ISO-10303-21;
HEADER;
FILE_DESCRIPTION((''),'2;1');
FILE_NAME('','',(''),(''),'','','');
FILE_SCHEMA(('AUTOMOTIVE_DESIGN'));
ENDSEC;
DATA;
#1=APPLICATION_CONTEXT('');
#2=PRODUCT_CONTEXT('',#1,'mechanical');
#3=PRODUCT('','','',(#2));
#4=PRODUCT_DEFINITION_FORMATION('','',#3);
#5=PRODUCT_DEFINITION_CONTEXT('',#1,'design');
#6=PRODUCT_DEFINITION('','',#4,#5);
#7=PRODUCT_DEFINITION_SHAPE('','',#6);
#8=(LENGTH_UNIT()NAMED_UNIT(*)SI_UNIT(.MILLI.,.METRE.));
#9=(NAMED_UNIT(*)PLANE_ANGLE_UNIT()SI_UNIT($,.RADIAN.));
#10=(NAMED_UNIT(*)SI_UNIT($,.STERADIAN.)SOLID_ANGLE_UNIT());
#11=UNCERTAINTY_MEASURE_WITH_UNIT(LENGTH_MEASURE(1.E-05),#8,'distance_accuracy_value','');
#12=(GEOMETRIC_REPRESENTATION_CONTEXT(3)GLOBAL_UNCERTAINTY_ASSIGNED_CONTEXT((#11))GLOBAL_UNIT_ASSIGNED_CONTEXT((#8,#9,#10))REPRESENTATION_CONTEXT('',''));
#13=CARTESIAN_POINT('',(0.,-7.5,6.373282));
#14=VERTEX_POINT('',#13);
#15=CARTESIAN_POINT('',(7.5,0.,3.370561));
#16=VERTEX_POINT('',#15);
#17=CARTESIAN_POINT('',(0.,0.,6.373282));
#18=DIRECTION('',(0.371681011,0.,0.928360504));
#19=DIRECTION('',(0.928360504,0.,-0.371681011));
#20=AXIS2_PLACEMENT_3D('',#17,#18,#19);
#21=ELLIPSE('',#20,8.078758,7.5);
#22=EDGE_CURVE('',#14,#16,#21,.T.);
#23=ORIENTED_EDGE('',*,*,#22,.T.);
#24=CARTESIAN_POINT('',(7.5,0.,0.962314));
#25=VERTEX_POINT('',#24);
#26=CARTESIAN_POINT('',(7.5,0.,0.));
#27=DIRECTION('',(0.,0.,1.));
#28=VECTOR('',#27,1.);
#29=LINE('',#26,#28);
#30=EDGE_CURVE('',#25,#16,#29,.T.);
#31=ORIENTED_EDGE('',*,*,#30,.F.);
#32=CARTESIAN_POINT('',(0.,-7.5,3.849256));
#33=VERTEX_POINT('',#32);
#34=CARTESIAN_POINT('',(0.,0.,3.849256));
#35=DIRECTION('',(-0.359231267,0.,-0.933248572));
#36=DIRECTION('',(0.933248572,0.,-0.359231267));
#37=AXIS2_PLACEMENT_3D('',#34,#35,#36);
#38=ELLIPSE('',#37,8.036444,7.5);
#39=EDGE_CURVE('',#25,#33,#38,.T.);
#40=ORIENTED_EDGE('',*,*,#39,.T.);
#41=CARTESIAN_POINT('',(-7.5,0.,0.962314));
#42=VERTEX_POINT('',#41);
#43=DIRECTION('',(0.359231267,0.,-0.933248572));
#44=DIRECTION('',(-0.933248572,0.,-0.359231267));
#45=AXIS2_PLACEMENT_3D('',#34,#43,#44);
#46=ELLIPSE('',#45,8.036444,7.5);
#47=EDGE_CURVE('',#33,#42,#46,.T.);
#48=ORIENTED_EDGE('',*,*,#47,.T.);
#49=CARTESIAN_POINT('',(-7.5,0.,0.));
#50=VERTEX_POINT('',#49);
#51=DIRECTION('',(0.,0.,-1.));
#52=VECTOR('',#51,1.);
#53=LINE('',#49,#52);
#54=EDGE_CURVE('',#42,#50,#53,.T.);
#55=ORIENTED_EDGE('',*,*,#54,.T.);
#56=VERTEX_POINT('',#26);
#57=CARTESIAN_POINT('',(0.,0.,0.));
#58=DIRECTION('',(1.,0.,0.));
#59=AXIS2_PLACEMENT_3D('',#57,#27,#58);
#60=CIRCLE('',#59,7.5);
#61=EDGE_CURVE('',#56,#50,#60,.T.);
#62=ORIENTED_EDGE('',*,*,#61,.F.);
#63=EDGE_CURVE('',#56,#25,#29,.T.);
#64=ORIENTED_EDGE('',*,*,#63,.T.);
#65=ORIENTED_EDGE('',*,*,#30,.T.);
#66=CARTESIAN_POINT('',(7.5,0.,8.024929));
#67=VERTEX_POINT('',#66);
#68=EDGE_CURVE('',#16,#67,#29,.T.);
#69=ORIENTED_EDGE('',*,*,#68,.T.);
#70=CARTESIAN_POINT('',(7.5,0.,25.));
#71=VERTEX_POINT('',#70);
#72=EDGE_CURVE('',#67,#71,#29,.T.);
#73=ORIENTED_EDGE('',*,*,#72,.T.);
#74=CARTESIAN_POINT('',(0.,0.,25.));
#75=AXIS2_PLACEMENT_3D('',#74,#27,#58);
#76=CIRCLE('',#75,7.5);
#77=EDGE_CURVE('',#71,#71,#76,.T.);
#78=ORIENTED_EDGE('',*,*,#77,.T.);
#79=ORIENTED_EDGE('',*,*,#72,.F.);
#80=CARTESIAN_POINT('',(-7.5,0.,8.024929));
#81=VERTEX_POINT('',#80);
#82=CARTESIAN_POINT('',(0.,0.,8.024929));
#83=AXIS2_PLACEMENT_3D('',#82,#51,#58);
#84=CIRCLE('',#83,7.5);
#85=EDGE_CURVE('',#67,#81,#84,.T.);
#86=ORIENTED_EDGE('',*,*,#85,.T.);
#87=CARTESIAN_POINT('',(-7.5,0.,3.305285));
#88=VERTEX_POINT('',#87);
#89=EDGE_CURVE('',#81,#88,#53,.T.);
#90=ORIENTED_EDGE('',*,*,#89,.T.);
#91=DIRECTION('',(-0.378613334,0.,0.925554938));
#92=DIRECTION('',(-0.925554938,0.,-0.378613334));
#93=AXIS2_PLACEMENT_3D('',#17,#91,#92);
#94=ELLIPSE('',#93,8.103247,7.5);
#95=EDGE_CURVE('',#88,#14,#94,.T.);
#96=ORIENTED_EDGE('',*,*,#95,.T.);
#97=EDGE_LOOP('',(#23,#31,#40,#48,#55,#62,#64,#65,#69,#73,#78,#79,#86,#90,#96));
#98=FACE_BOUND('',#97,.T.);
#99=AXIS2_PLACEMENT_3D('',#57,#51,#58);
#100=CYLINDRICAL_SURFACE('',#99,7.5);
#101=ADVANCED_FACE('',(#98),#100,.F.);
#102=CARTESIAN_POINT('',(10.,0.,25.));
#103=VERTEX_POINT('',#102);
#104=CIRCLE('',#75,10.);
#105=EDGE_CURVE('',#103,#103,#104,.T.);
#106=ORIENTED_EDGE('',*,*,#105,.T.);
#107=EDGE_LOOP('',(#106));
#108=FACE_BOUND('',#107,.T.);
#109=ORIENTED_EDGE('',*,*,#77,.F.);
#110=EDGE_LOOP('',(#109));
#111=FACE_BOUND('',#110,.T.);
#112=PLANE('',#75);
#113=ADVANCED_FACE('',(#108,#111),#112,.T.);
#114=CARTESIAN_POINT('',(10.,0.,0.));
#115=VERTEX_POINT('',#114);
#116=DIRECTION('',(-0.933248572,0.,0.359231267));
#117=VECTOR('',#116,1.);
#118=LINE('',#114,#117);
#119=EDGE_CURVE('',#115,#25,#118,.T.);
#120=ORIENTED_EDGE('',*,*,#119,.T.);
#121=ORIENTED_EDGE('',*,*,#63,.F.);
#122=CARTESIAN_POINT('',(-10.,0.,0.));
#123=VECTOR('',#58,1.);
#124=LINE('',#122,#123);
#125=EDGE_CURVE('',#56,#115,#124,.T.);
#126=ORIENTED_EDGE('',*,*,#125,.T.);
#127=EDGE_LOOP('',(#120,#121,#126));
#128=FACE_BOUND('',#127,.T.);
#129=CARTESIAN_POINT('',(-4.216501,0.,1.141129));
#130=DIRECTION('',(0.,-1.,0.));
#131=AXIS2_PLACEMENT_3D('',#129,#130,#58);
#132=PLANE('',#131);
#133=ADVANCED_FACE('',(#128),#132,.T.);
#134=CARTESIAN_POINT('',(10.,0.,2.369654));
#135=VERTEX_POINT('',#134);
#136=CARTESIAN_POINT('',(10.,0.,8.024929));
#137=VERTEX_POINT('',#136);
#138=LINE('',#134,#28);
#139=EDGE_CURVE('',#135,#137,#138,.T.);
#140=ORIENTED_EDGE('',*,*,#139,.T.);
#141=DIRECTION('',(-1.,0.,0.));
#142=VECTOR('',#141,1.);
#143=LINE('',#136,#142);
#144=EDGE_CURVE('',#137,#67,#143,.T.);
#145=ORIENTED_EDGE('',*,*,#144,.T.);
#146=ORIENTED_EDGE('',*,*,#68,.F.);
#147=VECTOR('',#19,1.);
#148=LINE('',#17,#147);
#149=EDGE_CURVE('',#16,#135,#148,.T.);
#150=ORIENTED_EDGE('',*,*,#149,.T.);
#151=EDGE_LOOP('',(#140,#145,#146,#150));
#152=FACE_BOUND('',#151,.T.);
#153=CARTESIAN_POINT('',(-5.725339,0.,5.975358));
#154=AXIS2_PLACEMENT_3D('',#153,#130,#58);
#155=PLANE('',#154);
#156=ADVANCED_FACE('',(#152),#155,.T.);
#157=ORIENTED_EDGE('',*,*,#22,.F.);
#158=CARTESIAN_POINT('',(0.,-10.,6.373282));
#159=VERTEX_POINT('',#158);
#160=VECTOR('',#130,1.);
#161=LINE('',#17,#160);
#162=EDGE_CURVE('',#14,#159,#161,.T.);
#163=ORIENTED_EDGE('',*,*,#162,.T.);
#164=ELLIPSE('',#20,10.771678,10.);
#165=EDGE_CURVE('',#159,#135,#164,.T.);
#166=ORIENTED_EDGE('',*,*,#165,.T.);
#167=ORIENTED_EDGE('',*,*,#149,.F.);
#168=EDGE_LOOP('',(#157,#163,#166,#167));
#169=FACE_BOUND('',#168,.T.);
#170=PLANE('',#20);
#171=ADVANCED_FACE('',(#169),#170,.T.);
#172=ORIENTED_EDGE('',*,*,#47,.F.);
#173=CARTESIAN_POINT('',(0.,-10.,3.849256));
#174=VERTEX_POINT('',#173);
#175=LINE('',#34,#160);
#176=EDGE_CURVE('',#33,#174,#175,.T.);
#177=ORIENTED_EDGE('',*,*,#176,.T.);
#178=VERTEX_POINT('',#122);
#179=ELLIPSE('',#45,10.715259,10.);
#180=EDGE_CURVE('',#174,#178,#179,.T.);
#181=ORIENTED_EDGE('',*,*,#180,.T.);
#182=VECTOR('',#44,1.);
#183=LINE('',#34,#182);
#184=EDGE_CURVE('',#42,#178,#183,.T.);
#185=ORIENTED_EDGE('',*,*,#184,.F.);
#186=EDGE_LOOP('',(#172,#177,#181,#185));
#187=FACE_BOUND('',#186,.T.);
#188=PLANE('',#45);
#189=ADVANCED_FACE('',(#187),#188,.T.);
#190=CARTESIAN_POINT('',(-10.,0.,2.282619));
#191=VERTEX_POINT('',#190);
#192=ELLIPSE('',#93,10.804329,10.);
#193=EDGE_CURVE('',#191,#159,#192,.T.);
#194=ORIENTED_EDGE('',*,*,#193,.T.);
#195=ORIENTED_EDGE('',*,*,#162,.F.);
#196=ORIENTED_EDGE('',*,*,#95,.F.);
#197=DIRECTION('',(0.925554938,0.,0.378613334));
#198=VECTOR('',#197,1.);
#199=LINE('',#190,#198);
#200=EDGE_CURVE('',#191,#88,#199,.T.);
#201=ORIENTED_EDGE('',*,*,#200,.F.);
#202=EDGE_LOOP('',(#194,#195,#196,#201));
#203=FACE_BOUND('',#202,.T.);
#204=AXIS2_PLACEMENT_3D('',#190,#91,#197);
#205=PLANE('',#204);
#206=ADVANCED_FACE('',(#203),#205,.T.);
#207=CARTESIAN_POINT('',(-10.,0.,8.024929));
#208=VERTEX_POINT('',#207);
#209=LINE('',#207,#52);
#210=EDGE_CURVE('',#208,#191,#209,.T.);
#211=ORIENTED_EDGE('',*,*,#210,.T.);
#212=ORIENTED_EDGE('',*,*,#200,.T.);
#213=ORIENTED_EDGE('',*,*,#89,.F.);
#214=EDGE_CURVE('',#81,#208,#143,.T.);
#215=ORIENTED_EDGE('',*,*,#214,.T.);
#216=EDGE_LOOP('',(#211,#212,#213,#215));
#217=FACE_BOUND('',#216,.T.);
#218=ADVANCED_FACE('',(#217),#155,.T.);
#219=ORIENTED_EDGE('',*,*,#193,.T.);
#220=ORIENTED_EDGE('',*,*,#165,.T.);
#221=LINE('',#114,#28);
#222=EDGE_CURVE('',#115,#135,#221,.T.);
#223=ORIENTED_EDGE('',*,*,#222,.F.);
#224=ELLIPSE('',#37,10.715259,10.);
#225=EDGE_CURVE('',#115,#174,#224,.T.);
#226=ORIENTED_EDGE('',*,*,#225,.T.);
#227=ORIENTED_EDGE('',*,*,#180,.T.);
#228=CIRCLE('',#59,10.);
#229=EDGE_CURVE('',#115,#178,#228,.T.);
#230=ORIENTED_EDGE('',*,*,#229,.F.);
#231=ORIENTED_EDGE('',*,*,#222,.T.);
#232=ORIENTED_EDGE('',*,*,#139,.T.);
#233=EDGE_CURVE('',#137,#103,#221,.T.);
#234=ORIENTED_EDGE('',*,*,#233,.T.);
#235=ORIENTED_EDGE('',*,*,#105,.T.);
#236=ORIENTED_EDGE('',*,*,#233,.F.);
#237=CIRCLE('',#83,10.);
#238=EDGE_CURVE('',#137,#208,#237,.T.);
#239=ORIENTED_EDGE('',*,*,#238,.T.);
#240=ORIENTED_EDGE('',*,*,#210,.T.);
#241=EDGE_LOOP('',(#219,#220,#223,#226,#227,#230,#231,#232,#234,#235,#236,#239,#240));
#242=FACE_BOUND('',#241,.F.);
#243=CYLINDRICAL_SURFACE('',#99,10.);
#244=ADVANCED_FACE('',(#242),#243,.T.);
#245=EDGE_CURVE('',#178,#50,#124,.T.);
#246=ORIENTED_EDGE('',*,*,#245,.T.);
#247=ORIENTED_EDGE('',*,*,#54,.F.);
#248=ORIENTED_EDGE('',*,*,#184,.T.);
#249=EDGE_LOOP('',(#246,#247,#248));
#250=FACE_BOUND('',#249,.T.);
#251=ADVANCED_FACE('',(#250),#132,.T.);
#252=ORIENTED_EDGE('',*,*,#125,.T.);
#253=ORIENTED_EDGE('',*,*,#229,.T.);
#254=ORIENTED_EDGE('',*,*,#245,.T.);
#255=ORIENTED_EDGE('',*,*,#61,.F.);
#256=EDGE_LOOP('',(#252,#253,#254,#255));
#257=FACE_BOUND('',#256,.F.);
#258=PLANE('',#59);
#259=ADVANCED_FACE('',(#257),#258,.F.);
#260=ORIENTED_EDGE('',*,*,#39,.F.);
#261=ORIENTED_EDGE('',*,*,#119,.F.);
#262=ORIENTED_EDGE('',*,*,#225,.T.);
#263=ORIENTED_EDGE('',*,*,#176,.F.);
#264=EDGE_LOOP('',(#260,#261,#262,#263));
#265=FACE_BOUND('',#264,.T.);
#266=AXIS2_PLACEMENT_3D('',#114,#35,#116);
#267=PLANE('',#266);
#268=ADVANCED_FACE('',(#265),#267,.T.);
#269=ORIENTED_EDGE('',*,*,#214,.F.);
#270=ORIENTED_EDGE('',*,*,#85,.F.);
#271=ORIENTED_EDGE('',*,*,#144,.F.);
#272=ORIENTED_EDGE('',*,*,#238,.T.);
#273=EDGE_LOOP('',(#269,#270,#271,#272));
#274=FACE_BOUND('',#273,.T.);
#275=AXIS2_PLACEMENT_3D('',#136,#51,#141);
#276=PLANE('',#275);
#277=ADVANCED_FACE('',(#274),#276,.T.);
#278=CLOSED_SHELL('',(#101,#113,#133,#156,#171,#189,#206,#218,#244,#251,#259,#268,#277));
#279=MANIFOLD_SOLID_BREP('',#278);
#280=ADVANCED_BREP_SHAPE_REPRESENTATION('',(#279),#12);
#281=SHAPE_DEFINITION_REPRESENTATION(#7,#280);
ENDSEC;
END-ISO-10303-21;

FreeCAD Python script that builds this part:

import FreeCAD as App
import Part
import Sketcher


def add_polygon(sketch, points):
    """Adds a closed chain of lines whose ends are joined by coincident constraints."""
    first, n = sketch.GeometryCount, len(points)
    for a, b in zip(points, points[1:] + points[:1]):
        sketch.addGeometry(Part.LineSegment(App.Vector(*a, 0), App.Vector(*b, 0)), False)
    for i in range(n):
        sketch.addConstraint(Sketcher.Constraint("Coincident", first + i, 2, first + (i + 1) % n, 1))

doc = App.newDocument("Part")
body = doc.addObject("PartDesign::Body", "Body")

sketch1 = doc.addObject("Sketcher::SketchObject", "Sketch")
body.addObject(sketch1)
sketch1.AttachmentSupport = (doc.XY_Plane, [""])
sketch1.MapMode = "FlatFace"
sketch1.addGeometry([
    Part.Circle(App.Vector(0, 0, 0), App.Vector(0, 0, 1), 10),
    Part.Circle(App.Vector(0, 0, 0), App.Vector(0, 0, 1), 8),
], False)
sketch1.addConstraint([
    Sketcher.Constraint("Coincident", 0, 3, -1, 1),
    Sketcher.Constraint("Coincident", 1, 3, -1, 1),
    Sketcher.Constraint("Diameter", 0, 20.0),
    Sketcher.Constraint("Diameter", 1, 15.0),
])
pad1 = doc.addObject("PartDesign::Pad", "Pad")
body.addObject(pad1)
pad1.Profile = sketch1
pad1.Length = 25

sketch2 = doc.addObject("Sketcher::SketchObject", "Sketch001")
body.addObject(sketch2)
sketch2.AttachmentSupport = (doc.XZ_Plane, [""])
sketch2.MapMode = "FlatFace"
add_polygon(sketch2, [(0, 4), (-10, 0), (10, 0)])
add_polygon(sketch2, [(-10, 8), (-10, 2), (0, 6), (10, 2), (10, 8)])
sketch2.addConstraint([
    Sketcher.Constraint("Horizontal", 1),
    Sketcher.Constraint("Vertical", 3),
    Sketcher.Constraint("Vertical", 6),
    Sketcher.Constraint("Horizontal", 7),
    Sketcher.Constraint("Symmetric", 0, 2, 1, 2, -1, 1),
    Sketcher.Constraint("PointOnObject", 2, 2, -2),
    Sketcher.Constraint("PointOnObject", 4, 2, -2),
    Sketcher.Constraint("Vertical", 0, 2, 3, 2),
    Sketcher.Constraint("Vertical", 1, 2, 5, 2),
    Sketcher.Constraint("DistanceX", 1, 1, 1, 2, 20.0),
    Sketcher.Constraint("DistanceY", 3, 2, 3, 1, 5.74231),
    Sketcher.Constraint("DistanceY", 5, 2, 2, 2, 1.479602),
    Sketcher.Constraint("Distance", 0, 10.715259),
    Sketcher.Constraint("Distance", 4, 10.804329),
    Sketcher.Constraint("DistanceY", 6, 1, 6, 2, 5.655275),
])
pocket1 = doc.addObject("PartDesign::Pocket", "Pocket")
body.addObject(pocket1)
pocket1.Profile = sketch2
pocket1.Length = 25
pocket1.Reversed = True

doc.recompute()
